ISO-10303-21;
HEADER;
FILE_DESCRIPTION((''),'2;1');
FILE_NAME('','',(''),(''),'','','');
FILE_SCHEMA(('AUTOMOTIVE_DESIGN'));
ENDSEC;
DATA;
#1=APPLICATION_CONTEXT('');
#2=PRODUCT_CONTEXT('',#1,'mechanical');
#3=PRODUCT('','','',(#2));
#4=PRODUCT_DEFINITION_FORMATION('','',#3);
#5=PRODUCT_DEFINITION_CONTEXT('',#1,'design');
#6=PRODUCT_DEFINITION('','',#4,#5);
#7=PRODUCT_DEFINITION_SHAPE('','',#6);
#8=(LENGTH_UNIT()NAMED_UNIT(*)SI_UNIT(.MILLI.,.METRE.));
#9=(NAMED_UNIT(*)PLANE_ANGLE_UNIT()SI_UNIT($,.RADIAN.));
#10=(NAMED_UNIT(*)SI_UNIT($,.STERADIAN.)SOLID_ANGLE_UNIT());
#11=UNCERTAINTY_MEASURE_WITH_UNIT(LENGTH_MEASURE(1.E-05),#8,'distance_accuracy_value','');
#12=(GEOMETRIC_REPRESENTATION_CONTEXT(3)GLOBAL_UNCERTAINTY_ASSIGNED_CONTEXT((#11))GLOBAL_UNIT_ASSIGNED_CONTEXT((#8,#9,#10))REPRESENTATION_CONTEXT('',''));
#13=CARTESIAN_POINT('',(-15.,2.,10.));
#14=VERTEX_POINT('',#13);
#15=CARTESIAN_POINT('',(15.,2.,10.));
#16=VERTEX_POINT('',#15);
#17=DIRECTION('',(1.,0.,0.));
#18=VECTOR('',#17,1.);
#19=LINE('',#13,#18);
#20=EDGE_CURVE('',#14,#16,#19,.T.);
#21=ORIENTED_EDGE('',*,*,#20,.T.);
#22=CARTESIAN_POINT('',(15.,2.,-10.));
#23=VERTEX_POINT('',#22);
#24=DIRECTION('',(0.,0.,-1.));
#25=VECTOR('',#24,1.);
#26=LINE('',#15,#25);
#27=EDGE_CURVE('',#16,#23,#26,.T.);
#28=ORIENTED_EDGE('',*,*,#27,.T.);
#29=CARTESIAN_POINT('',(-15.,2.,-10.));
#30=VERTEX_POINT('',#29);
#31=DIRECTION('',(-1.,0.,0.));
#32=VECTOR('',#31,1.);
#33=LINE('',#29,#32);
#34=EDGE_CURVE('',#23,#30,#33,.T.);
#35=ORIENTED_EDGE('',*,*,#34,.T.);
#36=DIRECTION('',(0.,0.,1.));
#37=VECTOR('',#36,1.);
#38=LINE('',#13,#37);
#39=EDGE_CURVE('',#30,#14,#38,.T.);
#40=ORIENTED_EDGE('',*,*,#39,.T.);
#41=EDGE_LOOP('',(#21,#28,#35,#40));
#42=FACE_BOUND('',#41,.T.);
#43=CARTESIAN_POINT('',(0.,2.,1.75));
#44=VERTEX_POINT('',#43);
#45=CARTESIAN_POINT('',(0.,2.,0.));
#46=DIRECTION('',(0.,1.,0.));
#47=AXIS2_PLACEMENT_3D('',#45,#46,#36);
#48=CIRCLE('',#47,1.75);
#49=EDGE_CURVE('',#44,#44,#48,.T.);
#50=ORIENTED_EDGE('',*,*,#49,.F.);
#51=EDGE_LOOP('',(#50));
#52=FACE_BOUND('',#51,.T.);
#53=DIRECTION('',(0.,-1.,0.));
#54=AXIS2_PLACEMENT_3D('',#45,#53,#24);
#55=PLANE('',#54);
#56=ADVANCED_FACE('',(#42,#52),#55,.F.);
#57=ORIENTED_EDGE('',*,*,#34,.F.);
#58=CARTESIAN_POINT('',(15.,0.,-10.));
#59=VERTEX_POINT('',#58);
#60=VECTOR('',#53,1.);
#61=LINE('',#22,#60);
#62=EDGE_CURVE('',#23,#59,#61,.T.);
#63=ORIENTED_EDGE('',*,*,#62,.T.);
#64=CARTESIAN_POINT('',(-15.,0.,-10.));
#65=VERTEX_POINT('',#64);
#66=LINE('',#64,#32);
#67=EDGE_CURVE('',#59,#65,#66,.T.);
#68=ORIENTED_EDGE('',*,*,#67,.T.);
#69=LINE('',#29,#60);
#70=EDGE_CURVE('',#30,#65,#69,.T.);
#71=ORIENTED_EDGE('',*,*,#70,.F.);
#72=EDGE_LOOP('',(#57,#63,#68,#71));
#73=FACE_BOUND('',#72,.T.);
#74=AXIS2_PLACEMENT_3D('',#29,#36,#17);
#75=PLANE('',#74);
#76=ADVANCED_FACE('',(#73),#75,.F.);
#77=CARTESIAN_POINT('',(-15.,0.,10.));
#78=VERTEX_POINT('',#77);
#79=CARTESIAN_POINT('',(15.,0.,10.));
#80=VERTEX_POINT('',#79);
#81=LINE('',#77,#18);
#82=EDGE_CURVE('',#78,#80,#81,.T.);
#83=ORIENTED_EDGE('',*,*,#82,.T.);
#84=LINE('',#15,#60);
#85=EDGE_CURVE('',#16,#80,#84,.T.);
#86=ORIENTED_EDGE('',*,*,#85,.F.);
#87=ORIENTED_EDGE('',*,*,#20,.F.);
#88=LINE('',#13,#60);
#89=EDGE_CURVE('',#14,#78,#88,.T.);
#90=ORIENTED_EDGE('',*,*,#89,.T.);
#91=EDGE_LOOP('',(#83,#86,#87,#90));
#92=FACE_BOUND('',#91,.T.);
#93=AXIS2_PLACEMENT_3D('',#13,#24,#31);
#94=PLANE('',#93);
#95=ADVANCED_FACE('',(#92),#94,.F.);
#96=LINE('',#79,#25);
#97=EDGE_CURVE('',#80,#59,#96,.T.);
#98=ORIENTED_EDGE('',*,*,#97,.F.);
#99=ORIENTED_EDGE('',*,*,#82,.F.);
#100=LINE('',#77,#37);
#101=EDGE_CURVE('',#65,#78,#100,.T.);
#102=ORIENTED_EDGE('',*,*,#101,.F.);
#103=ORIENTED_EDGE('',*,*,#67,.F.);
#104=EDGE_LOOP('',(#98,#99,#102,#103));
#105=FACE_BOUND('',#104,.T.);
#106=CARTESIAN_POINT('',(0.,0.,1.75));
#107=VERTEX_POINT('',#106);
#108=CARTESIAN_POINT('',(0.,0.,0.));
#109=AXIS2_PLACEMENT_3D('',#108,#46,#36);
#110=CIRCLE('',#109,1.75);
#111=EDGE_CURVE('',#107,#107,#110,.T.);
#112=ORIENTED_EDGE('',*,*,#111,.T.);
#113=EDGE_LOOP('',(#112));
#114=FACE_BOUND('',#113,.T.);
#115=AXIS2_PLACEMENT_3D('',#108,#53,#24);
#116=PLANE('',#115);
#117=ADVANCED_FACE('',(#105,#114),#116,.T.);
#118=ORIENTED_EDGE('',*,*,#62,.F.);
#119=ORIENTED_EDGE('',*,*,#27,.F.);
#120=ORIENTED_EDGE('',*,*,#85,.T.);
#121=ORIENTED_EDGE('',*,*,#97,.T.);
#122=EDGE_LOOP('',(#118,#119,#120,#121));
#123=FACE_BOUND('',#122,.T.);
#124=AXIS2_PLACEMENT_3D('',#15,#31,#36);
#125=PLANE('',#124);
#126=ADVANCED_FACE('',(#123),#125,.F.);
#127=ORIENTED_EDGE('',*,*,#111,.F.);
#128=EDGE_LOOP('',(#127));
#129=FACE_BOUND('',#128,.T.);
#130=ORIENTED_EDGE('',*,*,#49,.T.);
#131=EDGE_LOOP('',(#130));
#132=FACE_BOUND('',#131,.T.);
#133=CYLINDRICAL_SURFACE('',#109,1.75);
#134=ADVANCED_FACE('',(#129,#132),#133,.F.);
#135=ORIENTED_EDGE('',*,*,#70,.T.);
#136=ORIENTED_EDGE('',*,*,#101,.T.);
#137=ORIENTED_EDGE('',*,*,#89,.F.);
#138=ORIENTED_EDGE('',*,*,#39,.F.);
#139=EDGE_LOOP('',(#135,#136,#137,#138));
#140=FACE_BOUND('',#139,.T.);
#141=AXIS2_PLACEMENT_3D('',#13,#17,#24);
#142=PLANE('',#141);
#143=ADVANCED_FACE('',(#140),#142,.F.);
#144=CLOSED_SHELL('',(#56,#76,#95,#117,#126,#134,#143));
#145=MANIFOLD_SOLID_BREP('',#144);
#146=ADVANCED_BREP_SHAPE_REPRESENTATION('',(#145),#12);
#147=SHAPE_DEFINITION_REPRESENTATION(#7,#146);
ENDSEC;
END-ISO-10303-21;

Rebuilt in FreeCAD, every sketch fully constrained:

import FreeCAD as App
import Part
import Sketcher


def add_polygon(sketch, points):
    """Adds a closed chain of lines whose ends are joined by coincident constraints."""
    first, n = sketch.GeometryCount, len(points)
    for a, b in zip(points, points[1:] + points[:1]):
        sketch.addGeometry(Part.LineSegment(App.Vector(*a, 0), App.Vector(*b, 0)), False)
    for i in range(n):
        sketch.addConstraint(Sketcher.Constraint("Coincident", first + i, 2, first + (i + 1) % n, 1))

doc = App.newDocument("Part")
body = doc.addObject("PartDesign::Body", "Body")

# Sketch on XZ plane
sketch1 = doc.addObject("Sketcher::SketchObject", "Sketch")
body.addObject(sketch1)
sketch1.AttachmentSupport = (doc.XZ_Plane, [""])
sketch1.MapMode = "FlatFace"
add_polygon(sketch1, [(-15, -10), (-15, 10), (15, 10), (15, -10)])  # lines 0-3
sketch1.addConstraint([
    Sketcher.Constraint("Vertical", 0),
    Sketcher.Constraint("Horizontal", 1),
    Sketcher.Constraint("Vertical", 2),
    Sketcher.Constraint("Horizontal", 3),
    Sketcher.Constraint("Symmetric", 0, 2, 2, 2, -1, 1),
    Sketcher.Constraint("DistanceX", 1, 1, 1, 2, 30.0),
    Sketcher.Constraint("DistanceY", 0, 1, 0, 2, 20.0),
])
pad1 = doc.addObject("PartDesign::Pad", "Pad")
body.addObject(pad1)
pad1.Profile = sketch1
pad1.Length = 2
pad1.Reversed = True

# Sketch on XZ plane
sketch2 = doc.addObject("Sketcher::SketchObject", "Sketch001")
body.addObject(sketch2)
sketch2.AttachmentSupport = (doc.XZ_Plane, [""])
sketch2.MapMode = "FlatFace"
sketch2.AttachmentOffset = App.Placement(App.Vector(0, 0, -2), App.Rotation())
sketch2.addGeometry(Part.Circle(App.Vector(0, 0, 0), App.Vector(0, 0, 1), 1.8), False)
sketch2.addConstraint([
    Sketcher.Constraint("Coincident", 0, 3, -1, 1),
    Sketcher.Constraint("Diameter", 0, 3.5),
])
pocket1 = doc.addObject("PartDesign::Pocket", "Pocket")
body.addObject(pocket1)
pocket1.Profile = sketch2
pocket1.Type = "ThroughAll"
pocket1.Reversed = True

doc.recompute()
